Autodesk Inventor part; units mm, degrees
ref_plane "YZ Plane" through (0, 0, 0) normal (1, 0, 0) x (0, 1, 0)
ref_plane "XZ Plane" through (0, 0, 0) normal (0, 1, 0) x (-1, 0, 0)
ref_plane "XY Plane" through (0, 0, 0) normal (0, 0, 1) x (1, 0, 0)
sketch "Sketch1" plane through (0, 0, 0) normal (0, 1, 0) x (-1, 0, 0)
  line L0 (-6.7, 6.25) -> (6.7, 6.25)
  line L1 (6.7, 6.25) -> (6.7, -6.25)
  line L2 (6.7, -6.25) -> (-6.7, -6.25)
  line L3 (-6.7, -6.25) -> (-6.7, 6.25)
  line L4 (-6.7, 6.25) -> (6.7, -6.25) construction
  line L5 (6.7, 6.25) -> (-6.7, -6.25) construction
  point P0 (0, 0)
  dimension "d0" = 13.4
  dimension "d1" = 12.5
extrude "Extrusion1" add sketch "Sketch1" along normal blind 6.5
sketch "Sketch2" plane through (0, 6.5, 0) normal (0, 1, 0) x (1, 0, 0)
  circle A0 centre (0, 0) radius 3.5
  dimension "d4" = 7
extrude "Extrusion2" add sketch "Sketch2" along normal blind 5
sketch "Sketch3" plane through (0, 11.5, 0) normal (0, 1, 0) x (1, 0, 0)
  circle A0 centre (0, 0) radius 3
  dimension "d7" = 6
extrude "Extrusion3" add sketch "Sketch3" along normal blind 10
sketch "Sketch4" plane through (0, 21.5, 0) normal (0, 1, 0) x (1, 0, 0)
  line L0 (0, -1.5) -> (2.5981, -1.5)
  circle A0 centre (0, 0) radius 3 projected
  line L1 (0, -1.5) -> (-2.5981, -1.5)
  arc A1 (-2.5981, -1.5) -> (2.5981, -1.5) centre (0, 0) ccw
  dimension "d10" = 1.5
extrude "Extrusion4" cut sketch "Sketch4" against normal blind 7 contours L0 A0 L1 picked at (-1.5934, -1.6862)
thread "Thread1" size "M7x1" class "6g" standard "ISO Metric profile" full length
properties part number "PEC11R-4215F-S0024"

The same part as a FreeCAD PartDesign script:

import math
import FreeCAD as App
import Part
import Sketcher

V = App.Vector
Q = App.Units.Quantity


def add_polygon(sketch, points):
    """Adds a closed chain of lines whose ends are joined by coincident constraints."""
    first, n = sketch.GeometryCount, len(points)
    for a, b in zip(points, points[1:] + points[:1]):
        sketch.addGeometry(Part.LineSegment(App.Vector(*a, 0), App.Vector(*b, 0)), False)
    for i in range(n):
        sketch.addConstraint(Sketcher.Constraint("Coincident", first + i, 2, first + (i + 1) % n, 1))

doc = App.newDocument("Part")
body = doc.addObject("PartDesign::Body", "Body")

sketch1 = doc.addObject("Sketcher::SketchObject", "Sketch")
body.addObject(sketch1)
sketch1.AttachmentSupport = (doc.XZ_Plane, [""])
sketch1.MapMode = "FlatFace"
add_polygon(sketch1, [(-7, 6), (7, 6), (7, -6), (-7, -6)])
sketch1.addConstraint([
    Sketcher.Constraint("Horizontal", 0),
    Sketcher.Constraint("Vertical", 1),
    Sketcher.Constraint("Horizontal", 2),
    Sketcher.Constraint("Vertical", 3),
    Sketcher.Constraint("Symmetric", 0, 2, 2, 2, -1, 1),
    Sketcher.Constraint("DistanceX", 0, 1, 0, 2, Q("13.4 mm")),
    Sketcher.Constraint("DistanceY", 1, 2, 1, 1, Q("12.5 mm")),
])
pad1 = doc.addObject("PartDesign::Pad", "Pad")
body.addObject(pad1)
pad1.Profile = sketch1
pad1.Length = 6.5
pad1.Reversed = True

sketch2 = doc.addObject("Sketcher::SketchObject", "Sketch001")
body.addObject(sketch2)
sketch2.AttachmentSupport = (doc.XZ_Plane, [""])
sketch2.MapMode = "FlatFace"
sketch2.AttachmentOffset = App.Placement(V(0, 0, -6.5), App.Rotation())
sketch2.addGeometry(Part.Circle(V(0, 0, 0), V(0, 0, 1), 3.5), False)
sketch2.addConstraint([
    Sketcher.Constraint("Coincident", 0, 3, -1, 1),
    Sketcher.Constraint("Diameter", 0, Q("7 mm")),
])
pad2 = doc.addObject("PartDesign::Pad", "Pad001")
body.addObject(pad2)
pad2.Profile = sketch2
pad2.Length = 5
pad2.Reversed = True

sketch3 = doc.addObject("Sketcher::SketchObject", "Sketch002")
body.addObject(sketch3)
sketch3.AttachmentSupport = (doc.XZ_Plane, [""])
sketch3.MapMode = "FlatFace"
sketch3.AttachmentOffset = App.Placement(V(0, 0, -11.5), App.Rotation())
sketch3.addGeometry(Part.Circle(V(0, 0, 0), V(0, 0, 1), 3), False)
sketch3.addConstraint([
    Sketcher.Constraint("Coincident", 0, 3, -1, 1),
    Sketcher.Constraint("Diameter", 0, Q("6 mm")),
])
pad3 = doc.addObject("PartDesign::Pad", "Pad002")
body.addObject(pad3)
pad3.Profile = sketch3
pad3.Length = 10
pad3.Reversed = True

sketch4 = doc.addObject("Sketcher::SketchObject", "Sketch003")
body.addObject(sketch4)
sketch4.AttachmentSupport = (doc.XZ_Plane, [""])
sketch4.MapMode = "FlatFace"
sketch4.AttachmentOffset = App.Placement(V(0, 0, -21.5), App.Rotation())
sketch4.addGeometry([
    Part.LineSegment(V(2.6, 1.5, 0), V(-2.6, 1.5, 0)),
    Part.ArcOfCircle(Part.Circle(V(0, 0, 0), V(0, 0, 1), 3), math.radians(30), math.radians(150)),
], False)
sketch4.addConstraint([
    Sketcher.Constraint("Coincident", 0, 1, 1, 1),
    Sketcher.Constraint("Coincident", 1, 2, 0, 2),
    Sketcher.Constraint("Horizontal", 0),
    Sketcher.Constraint("Coincident", 1, 3, -1, 1),
    Sketcher.Constraint("Radius", 1, Q("3 mm")),
    Sketcher.Constraint("DistanceY", -1, 1, 0, 1, Q("1.5 mm")),
])
pocket1 = doc.addObject("PartDesign::Pocket", "Pocket")
body.addObject(pocket1)
pocket1.Profile = sketch4
pocket1.Length = 7
pocket1.Reversed = True

doc.recompute()
